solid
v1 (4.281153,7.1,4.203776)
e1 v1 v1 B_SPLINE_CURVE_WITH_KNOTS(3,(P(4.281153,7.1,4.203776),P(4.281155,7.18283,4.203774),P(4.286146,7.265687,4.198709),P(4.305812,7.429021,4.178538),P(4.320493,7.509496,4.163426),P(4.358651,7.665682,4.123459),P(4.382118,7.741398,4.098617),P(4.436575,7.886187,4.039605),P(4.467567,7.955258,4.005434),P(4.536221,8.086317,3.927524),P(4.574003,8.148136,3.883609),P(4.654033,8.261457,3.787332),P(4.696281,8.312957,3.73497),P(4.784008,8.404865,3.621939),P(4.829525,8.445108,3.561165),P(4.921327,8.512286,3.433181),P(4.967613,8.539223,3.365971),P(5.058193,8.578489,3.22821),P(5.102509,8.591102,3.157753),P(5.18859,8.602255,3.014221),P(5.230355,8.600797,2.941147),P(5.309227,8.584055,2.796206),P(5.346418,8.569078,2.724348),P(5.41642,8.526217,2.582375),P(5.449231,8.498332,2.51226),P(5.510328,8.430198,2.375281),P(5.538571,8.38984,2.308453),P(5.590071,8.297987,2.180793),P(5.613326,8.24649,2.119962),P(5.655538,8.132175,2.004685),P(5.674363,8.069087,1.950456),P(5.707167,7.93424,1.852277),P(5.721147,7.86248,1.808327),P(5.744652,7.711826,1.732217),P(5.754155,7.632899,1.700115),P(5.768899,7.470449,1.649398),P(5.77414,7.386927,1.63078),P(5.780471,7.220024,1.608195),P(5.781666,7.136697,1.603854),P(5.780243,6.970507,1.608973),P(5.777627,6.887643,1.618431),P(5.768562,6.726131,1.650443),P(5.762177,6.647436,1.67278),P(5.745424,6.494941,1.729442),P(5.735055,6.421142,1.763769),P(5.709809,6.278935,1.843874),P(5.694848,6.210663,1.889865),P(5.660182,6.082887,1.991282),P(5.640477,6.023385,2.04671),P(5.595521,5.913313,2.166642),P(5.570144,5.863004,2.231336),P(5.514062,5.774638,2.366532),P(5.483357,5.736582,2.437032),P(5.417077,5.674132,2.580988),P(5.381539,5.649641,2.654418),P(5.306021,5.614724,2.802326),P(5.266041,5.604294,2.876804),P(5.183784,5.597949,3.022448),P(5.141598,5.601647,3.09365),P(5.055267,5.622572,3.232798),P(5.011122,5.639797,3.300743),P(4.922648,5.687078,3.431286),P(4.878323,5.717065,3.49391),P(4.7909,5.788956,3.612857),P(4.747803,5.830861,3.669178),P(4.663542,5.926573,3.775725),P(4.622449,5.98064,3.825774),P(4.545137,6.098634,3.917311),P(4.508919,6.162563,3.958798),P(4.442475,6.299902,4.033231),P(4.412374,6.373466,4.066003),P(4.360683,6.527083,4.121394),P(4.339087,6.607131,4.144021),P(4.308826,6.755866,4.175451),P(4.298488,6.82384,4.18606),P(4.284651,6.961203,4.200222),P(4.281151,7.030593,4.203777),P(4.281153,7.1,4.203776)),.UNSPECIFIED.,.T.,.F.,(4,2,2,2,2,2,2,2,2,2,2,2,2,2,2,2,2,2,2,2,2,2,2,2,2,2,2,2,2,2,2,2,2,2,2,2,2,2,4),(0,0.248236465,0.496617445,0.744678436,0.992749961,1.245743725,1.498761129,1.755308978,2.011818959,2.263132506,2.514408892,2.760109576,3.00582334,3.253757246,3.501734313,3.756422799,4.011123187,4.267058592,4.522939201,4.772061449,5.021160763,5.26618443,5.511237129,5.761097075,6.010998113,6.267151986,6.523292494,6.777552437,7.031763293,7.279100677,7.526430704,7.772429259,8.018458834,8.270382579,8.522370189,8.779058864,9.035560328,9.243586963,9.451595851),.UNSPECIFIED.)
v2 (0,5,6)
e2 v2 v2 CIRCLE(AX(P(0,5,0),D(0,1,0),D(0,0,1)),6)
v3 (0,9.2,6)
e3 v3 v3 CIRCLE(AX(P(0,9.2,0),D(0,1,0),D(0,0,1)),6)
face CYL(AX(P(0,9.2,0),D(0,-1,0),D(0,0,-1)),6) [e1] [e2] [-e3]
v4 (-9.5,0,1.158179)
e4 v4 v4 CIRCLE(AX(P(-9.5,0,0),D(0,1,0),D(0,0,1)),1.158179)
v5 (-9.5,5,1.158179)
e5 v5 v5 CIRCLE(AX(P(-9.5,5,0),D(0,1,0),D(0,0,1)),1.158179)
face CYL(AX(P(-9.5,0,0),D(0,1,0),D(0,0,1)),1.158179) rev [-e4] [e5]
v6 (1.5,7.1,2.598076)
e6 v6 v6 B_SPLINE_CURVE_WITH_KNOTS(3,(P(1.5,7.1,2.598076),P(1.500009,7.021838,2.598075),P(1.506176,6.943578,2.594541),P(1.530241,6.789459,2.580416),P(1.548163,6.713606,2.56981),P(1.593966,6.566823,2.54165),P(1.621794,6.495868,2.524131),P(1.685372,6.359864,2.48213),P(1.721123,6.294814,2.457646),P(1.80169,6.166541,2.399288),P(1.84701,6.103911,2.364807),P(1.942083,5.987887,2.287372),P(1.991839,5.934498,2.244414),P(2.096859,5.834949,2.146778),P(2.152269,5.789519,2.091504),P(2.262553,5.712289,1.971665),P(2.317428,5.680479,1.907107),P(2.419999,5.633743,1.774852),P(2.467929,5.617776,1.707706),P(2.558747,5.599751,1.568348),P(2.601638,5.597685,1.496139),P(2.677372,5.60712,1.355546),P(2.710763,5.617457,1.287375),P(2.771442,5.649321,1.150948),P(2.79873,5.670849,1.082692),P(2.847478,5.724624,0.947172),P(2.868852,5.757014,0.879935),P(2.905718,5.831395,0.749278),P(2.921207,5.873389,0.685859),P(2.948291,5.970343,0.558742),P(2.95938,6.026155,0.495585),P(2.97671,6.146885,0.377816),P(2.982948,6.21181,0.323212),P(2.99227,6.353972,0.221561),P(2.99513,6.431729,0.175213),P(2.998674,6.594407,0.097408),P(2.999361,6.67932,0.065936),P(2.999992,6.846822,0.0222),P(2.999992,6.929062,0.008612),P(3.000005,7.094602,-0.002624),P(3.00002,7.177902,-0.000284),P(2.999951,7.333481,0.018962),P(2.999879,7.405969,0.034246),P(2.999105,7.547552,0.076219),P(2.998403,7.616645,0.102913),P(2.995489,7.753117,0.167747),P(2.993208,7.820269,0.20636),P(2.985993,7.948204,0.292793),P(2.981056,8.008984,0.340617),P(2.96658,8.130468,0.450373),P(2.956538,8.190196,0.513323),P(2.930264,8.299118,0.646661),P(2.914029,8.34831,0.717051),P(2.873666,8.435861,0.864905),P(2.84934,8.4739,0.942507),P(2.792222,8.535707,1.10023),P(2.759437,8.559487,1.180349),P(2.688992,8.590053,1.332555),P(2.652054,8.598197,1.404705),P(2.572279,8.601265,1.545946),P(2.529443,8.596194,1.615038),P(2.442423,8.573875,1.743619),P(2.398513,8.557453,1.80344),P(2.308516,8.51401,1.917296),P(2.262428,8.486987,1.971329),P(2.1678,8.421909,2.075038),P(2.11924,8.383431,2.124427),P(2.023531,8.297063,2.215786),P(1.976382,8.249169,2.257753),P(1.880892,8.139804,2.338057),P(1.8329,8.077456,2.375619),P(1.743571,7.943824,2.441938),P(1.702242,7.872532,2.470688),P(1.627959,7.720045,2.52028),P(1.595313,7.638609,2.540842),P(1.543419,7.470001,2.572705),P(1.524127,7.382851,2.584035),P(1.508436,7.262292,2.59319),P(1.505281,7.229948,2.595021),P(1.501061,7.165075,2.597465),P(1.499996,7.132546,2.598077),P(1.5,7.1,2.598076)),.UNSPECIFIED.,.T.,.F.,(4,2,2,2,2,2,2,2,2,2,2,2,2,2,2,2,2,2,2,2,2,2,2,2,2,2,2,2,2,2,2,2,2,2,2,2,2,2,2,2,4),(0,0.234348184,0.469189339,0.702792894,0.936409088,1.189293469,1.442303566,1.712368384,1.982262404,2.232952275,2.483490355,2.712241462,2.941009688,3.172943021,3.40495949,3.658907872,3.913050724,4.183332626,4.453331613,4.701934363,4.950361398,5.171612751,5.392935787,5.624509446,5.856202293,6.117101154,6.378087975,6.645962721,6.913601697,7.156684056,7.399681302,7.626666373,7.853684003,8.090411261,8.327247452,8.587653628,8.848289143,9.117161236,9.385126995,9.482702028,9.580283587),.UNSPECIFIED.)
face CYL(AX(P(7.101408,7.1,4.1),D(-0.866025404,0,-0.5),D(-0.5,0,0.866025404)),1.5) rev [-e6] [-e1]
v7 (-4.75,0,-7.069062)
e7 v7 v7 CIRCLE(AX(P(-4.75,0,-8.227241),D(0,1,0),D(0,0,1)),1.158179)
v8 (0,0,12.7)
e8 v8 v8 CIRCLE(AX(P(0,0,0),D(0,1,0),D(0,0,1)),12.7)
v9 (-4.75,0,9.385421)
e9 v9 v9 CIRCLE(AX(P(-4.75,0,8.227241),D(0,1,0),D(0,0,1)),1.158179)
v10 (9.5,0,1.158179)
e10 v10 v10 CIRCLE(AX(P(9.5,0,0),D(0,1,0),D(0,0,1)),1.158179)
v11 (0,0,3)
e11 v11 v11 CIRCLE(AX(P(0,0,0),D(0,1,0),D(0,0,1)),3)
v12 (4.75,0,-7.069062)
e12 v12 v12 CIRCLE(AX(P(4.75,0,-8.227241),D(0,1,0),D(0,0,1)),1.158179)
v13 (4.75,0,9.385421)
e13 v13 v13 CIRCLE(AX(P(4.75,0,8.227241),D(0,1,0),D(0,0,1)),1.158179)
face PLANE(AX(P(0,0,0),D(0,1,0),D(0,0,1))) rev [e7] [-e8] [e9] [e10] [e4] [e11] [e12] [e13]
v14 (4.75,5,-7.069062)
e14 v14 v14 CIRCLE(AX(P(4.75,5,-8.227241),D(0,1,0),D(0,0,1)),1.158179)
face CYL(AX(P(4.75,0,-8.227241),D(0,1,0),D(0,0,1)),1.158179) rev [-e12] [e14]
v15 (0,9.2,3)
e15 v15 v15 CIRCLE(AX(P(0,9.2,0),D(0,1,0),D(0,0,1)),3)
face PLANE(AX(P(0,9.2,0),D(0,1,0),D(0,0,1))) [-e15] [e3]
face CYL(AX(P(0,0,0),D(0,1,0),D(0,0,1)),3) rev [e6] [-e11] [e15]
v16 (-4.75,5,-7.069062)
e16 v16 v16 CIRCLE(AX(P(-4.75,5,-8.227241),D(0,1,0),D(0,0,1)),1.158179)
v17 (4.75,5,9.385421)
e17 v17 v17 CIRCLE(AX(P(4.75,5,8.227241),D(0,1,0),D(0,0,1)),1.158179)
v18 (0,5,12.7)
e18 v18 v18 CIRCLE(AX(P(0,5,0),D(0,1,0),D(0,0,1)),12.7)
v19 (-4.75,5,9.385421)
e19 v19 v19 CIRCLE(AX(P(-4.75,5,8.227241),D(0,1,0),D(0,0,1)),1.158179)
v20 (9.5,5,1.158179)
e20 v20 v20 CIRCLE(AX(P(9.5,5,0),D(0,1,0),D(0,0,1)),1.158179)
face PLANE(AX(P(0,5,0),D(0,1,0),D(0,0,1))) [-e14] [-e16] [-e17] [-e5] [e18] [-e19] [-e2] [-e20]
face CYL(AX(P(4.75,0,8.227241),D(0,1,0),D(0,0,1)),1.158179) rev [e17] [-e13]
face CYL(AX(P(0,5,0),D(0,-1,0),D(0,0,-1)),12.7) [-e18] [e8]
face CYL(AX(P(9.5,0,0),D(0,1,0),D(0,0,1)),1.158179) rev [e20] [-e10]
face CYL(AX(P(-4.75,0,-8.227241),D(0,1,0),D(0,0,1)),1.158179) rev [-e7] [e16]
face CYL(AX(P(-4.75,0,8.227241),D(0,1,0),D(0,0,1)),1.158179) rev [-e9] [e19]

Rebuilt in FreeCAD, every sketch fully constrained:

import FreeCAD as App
import Part
import Sketcher

V = App.Vector
Q = App.Units.Quantity

doc = App.newDocument("Part")
body = doc.addObject("PartDesign::Body", "Body")

# Sketch on XZ plane
sketch1 = doc.addObject("Sketcher::SketchObject", "Sketch")
body.addObject(sketch1)
sketch1.AttachmentSupport = (doc.XZ_Plane, [""])
sketch1.MapMode = "FlatFace"
sketch1.addGeometry(Part.Circle(V(0, 0, 0), V(0, 0, 1), 13), False)
sketch1.addConstraint([
    Sketcher.Constraint("Coincident", 0, 3, -1, 1),
    Sketcher.Constraint("Diameter", 0, Q("25.4 mm")),
])
pad1 = doc.addObject("PartDesign::Pad", "Pad")
body.addObject(pad1)
pad1.Profile = sketch1
pad1.Length = 5
pad1.Reversed = True

# Sketch on XZ plane
sketch2 = doc.addObject("Sketcher::SketchObject", "Sketch001")
body.addObject(sketch2)
sketch2.AttachmentSupport = (doc.XZ_Plane, [""])
sketch2.MapMode = "FlatFace"
sketch2.AttachmentOffset = App.Placement(V(0, 0, -5), App.Rotation())
sketch2.addGeometry(Part.Circle(V(0, 0, 0), V(0, 0, 1), 6), False)
sketch2.addConstraint([
    Sketcher.Constraint("Coincident", 0, 3, -1, 1),
    Sketcher.Constraint("Diameter", 0, Q("12 mm")),
])
pad2 = doc.addObject("PartDesign::Pad", "Pad001")
body.addObject(pad2)
pad2.Profile = sketch2
pad2.Length = 4.2
pad2.Reversed = True

# Sketch on XZ plane
sketch3 = doc.addObject("Sketcher::SketchObject", "Sketch002")
body.addObject(sketch3)
sketch3.AttachmentSupport = (doc.XZ_Plane, [""])
sketch3.MapMode = "FlatFace"
sketch3.AttachmentOffset = App.Placement(V(0, 0, -9.2), App.Rotation())
sketch3.addGeometry(Part.Circle(V(0, 0, 0), V(0, 0, 1), 3), False)
sketch3.addConstraint([
    Sketcher.Constraint("Coincident", 0, 3, -1, 1),
    Sketcher.Constraint("Diameter", 0, Q("6 mm")),
])
pocket1 = doc.addObject("PartDesign::Pocket", "Pocket")
body.addObject(pocket1)
pocket1.Profile = sketch3
pocket1.Type = "ThroughAll"
pocket1.Reversed = True

# Sketch on XZ plane
sketch4 = doc.addObject("Sketcher::SketchObject", "Sketch003")
body.addObject(sketch4)
sketch4.AttachmentSupport = (doc.XZ_Plane, [""])
sketch4.MapMode = "FlatFace"
sketch4.AttachmentOffset = App.Placement(V(0, 0, -5), App.Rotation())
sketch4.addGeometry([
    Part.Circle(V(-9.5, 0, 0), V(0, 0, 1), 1.2),  # 0
    Part.Circle(V(-4.8, -8.2, 0), V(0, 0, 1), 1.2),  # 1
    Part.Circle(V(4.8, -8.2, 0), V(0, 0, 1), 1.2),  # 2
    Part.Circle(V(9.5, 0, 0), V(0, 0, 1), 1.2),  # 3
    Part.Circle(V(4.8, 8.2, 0), V(0, 0, 1), 1.2),  # 4
    Part.Circle(V(-4.8, 8.2, 0), V(0, 0, 1), 1.2),  # 5
], False)
sketch4.addConstraint([
    Sketcher.Constraint("Equal", 0, 1),
    Sketcher.Constraint("Equal", 1, 2),
    Sketcher.Constraint("Equal", 2, 3),
    Sketcher.Constraint("Equal", 3, 4),
    Sketcher.Constraint("Equal", 4, 5),
    Sketcher.Constraint("Symmetric", 0, 3, 3, 3, -1, 1),
    Sketcher.Constraint("Symmetric", 1, 3, 4, 3, -1, 1),
    Sketcher.Constraint("Symmetric", 2, 3, 5, 3, -1, 1),
    Sketcher.Constraint("Symmetric", 1, 3, 2, 3, -2),
    Sketcher.Constraint("PointOnObject", 0, 3, -1),
    Sketcher.Constraint("DistanceX", 0, 3, 3, 3, Q("19 mm")),
    Sketcher.Constraint("DistanceX", 1, 3, 2, 3, Q("9.5 mm")),
    Sketcher.Constraint("Diameter", 0, Q("2.316359 mm")),
    Sketcher.Constraint("DistanceY", 1, 3, -1, 1, Q("8.227241 mm")),
])
pocket2 = doc.addObject("PartDesign::Pocket", "Pocket001")
body.addObject(pocket2)
pocket2.Profile = sketch4
pocket2.Type = "ThroughAll"
pocket2.Reversed = True

# Sketch on an angled plane
sketch5 = doc.addObject("Sketcher::SketchObject", "Sketch004")
body.addObject(sketch5)
sketch5.Placement = App.Placement(V(0, 5, 0), App.Rotation(V(-0.5, 0, 0.866025404), V(0, 1, 0), V(-0.866025404, 0, -0.5), "ZXY"))
sketch5.addGeometry(Part.Circle(V(0, 2.1, 0), V(0, 0, 1), 1.5), False)
sketch5.addConstraint([
    Sketcher.Constraint("PointOnObject", 0, 3, -2),
    Sketcher.Constraint("Diameter", 0, Q("3 mm")),
    Sketcher.Constraint("DistanceY", -1, 1, 0, 3, Q("2.1 mm")),
])
pocket3 = doc.addObject("PartDesign::Pocket", "Pocket002")
body.addObject(pocket3)
pocket3.Profile = sketch5
pocket3.Length = 8.2

doc.recompute()
